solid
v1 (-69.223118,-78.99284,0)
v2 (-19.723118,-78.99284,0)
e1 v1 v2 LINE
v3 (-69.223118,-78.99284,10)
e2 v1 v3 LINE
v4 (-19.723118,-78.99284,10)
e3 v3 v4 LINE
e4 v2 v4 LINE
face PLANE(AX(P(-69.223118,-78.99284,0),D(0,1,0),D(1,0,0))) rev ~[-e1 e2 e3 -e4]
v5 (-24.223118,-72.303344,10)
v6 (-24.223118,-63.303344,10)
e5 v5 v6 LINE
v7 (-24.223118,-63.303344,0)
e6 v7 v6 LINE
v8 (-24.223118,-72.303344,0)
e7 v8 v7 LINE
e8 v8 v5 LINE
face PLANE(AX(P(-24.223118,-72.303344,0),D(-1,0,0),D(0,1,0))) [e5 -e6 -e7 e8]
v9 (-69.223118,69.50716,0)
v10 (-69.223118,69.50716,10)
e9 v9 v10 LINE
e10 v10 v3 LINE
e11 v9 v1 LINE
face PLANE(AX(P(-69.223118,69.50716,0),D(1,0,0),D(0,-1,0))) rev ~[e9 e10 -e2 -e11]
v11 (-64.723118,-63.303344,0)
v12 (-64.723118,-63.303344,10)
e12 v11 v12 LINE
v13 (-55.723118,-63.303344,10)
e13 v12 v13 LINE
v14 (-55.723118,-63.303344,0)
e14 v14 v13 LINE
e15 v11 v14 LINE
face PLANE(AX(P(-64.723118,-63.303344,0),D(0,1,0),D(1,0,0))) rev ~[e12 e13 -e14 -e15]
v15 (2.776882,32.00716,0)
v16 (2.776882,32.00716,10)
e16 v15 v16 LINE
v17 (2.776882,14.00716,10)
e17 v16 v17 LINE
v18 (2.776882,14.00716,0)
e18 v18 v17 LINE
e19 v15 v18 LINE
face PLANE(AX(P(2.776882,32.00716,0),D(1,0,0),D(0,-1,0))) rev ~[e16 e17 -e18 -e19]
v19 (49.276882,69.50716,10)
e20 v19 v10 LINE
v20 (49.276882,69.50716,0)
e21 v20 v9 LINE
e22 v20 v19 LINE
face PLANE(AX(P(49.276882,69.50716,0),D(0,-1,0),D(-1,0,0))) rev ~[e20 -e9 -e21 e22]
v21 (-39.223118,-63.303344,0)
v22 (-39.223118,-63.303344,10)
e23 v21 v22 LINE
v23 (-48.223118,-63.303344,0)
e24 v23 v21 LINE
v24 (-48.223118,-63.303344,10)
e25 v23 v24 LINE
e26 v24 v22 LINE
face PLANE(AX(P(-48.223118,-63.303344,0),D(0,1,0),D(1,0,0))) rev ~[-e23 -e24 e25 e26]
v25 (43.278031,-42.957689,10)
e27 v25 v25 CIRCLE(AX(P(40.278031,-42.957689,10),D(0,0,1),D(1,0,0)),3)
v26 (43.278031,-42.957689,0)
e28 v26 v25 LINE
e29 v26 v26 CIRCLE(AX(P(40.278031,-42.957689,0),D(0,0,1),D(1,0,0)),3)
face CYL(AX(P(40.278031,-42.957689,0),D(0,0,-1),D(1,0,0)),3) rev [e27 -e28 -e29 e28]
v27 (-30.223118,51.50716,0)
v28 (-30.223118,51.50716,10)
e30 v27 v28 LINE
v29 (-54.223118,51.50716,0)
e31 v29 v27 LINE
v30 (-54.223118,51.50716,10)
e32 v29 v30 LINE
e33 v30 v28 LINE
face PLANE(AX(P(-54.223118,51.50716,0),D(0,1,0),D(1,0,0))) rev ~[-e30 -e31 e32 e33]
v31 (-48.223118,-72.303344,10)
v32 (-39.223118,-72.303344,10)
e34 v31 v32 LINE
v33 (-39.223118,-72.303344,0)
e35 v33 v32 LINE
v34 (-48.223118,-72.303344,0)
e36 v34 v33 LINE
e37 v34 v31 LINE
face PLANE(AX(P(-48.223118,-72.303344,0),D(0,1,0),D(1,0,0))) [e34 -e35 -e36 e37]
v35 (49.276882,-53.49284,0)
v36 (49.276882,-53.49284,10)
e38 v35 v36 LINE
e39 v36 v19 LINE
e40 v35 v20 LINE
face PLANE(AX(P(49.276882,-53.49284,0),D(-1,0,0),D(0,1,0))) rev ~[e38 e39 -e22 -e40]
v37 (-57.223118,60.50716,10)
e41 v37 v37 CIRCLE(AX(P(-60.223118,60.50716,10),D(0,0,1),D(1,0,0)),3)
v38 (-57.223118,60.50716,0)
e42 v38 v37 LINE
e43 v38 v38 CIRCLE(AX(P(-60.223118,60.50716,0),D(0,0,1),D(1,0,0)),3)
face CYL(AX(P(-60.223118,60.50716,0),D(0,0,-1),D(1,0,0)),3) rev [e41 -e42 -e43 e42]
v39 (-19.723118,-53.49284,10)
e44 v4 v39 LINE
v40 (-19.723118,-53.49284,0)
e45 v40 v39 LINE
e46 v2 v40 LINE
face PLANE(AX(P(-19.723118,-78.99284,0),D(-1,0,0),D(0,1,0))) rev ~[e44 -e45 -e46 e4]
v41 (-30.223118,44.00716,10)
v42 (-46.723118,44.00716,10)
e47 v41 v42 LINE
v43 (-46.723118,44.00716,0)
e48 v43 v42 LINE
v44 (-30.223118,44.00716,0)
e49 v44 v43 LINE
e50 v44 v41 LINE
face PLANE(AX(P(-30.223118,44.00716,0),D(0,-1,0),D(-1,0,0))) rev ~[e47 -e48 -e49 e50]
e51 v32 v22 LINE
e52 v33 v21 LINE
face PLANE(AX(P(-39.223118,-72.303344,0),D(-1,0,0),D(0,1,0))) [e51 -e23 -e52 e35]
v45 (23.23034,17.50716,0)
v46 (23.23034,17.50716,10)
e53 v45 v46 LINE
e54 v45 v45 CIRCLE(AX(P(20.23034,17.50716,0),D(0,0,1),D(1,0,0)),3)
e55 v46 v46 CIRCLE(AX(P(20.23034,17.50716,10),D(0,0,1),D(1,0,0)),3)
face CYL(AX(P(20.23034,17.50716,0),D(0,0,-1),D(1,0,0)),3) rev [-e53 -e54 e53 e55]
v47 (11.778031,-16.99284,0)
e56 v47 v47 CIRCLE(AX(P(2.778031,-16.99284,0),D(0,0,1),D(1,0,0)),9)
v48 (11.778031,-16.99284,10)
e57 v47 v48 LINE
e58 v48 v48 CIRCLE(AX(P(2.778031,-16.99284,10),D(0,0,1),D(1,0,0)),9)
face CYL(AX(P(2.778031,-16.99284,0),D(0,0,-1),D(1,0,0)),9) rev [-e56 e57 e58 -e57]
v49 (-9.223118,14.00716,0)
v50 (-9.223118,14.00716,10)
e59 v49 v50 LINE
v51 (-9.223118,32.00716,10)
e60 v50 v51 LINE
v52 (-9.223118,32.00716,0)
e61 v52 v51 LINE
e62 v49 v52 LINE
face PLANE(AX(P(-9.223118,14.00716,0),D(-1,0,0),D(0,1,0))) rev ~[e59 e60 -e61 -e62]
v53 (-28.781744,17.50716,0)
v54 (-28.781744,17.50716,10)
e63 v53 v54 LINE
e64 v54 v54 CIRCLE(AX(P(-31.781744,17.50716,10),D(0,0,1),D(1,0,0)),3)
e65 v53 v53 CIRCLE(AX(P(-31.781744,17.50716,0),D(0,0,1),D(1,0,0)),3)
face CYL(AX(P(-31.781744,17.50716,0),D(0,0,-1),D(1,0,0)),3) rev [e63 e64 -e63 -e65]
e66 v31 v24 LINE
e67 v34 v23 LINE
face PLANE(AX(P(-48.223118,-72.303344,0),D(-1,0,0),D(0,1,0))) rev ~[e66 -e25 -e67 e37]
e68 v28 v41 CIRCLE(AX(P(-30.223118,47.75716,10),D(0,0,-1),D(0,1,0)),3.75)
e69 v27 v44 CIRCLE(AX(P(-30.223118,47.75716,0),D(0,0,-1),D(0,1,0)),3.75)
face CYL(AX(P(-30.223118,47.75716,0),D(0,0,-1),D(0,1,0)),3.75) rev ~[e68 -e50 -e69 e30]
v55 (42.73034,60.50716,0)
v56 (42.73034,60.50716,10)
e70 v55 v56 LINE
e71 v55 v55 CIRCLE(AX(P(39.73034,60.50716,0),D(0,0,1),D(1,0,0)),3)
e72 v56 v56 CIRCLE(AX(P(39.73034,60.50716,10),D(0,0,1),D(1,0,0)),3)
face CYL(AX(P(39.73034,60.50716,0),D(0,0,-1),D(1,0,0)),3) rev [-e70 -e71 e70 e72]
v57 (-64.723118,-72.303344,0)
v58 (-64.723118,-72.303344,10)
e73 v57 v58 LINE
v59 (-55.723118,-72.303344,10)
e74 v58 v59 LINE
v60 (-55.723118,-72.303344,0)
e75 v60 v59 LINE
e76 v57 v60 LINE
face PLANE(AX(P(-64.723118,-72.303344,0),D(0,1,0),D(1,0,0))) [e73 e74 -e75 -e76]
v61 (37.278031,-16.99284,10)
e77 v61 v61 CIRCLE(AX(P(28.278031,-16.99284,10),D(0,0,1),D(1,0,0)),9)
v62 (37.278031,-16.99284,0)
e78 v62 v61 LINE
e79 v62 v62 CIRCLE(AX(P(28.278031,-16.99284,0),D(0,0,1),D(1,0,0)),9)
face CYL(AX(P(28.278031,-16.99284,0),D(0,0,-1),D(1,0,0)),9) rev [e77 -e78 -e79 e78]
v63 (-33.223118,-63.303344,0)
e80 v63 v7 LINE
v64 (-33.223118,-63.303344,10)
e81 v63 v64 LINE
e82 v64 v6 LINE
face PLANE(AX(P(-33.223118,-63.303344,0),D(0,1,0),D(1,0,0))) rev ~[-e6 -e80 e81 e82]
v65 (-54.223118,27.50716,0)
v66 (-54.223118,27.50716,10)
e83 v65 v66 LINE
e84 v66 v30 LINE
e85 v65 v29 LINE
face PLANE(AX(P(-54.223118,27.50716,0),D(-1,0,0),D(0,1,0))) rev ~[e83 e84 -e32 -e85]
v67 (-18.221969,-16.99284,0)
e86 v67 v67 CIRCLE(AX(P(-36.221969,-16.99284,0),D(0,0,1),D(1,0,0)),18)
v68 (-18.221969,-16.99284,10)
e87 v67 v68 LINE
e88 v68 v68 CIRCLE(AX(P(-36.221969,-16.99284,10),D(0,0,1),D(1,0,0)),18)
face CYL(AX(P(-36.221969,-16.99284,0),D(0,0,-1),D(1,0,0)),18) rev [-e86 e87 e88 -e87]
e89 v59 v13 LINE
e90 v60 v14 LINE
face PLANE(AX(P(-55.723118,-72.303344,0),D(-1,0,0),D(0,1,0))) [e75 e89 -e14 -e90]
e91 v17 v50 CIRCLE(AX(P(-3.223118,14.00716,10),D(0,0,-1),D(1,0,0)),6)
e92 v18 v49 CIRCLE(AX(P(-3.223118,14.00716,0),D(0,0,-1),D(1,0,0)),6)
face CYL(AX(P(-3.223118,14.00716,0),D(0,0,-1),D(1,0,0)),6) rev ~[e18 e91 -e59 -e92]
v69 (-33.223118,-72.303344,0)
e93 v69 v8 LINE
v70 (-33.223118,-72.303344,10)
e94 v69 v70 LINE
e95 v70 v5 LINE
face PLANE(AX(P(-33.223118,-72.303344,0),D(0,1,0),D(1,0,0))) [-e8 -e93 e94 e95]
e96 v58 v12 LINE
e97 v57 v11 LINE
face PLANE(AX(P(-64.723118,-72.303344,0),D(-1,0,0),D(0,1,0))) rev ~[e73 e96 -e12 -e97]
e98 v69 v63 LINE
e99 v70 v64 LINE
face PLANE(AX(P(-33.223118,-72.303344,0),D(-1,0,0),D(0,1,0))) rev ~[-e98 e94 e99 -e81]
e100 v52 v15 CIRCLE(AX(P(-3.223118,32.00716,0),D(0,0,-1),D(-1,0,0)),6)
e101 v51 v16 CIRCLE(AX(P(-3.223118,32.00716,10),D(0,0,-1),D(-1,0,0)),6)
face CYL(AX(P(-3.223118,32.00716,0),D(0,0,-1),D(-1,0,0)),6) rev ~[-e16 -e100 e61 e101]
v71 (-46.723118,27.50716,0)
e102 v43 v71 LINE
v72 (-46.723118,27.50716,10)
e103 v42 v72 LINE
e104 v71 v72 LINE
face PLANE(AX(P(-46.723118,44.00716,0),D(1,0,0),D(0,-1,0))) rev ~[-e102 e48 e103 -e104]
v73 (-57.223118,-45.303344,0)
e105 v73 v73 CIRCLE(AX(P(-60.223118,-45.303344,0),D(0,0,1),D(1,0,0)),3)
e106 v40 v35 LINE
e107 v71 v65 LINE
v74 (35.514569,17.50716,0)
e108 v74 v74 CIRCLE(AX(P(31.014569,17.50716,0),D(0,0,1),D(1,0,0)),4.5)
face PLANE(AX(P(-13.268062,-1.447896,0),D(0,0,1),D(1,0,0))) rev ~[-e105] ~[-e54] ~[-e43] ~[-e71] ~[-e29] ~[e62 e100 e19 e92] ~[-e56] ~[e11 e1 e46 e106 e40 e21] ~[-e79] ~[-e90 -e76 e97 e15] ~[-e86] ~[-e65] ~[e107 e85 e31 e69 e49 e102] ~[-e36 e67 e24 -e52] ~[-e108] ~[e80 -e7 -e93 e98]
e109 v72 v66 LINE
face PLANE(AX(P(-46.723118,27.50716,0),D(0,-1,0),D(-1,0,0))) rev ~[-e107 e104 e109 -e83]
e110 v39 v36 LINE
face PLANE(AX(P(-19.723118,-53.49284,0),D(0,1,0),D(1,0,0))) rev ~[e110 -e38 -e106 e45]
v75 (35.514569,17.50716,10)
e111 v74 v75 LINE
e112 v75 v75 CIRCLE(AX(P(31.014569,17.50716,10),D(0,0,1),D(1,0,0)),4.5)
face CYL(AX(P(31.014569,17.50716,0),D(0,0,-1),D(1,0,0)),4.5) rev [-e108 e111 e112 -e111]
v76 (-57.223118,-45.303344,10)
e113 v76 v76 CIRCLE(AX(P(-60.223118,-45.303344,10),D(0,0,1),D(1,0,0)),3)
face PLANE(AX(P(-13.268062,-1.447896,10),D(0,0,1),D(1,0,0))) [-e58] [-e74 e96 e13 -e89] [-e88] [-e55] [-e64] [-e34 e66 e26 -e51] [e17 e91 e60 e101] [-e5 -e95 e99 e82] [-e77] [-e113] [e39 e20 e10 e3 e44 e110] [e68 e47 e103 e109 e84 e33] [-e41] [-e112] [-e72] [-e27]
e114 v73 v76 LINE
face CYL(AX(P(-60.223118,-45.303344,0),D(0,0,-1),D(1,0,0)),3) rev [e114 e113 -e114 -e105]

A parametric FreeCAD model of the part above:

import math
import FreeCAD as App
import Part
import Sketcher

doc = App.newDocument("Part")
params = doc.addObject("Spreadsheet::Sheet", "Params")
for row, (alias, value) in enumerate([
    ("sketch1_diameter", "6 mm"),
    ("sketch1_diameter2", "36 mm"),
    ("sketch1_diameter3", "18 mm"),
    ("sketch1_diameter4", "9 mm"),
    ("sketch1_radius", "6 mm"),
    ("pad1_length", "10 mm"),
], start=1):
    params.set(f"A{row}", alias)
    params.set(f"B{row}", "=" + value)
    params.setAlias(f"B{row}", alias)

body = doc.addObject("PartDesign::Body", "Body")

# Sketch on XY plane
sketch1 = doc.addObject("Sketcher::SketchObject", "Sketch")
body.addObject(sketch1)
sketch1.AttachmentSupport = (doc.XY_Plane, [""])
sketch1.MapMode = "FlatFace"
sketch1.addGeometry([
    Part.LineSegment(App.Vector(49.276882, 69.50716, 0), App.Vector(-69.223118, 69.50716, 0)),  # 0
    Part.LineSegment(App.Vector(-69.223118, 69.50716, 0), App.Vector(-69.223118, -78.99284, 0)),  # 1
    Part.LineSegment(App.Vector(-69.223118, -78.99284, 0), App.Vector(-19.723118, -78.99284, 0)),  # 2
    Part.LineSegment(App.Vector(-19.723118, -78.99284, 0), App.Vector(-19.723118, -53.49284, 0)),  # 3
    Part.LineSegment(App.Vector(-19.723118, -53.49284, 0), App.Vector(49.276882, -53.49284, 0)),  # 4
    Part.LineSegment(App.Vector(49.276882, -53.49284, 0), App.Vector(49.276882, 69.50716, 0)),  # 5
    Part.LineSegment(App.Vector(-55.723118, -72.303344, 0), App.Vector(-64.723118, -72.303344, 0)),  # 6
    Part.LineSegment(App.Vector(-64.723118, -72.303344, 0), App.Vector(-64.723118, -63.303344, 0)),  # 7
    Part.LineSegment(App.Vector(-64.723118, -63.303344, 0), App.Vector(-55.723118, -63.303344, 0)),  # 8
    Part.LineSegment(App.Vector(-55.723118, -63.303344, 0), App.Vector(-55.723118, -72.303344, 0)),  # 9
    Part.LineSegment(App.Vector(-39.223118, -72.303344, 0), App.Vector(-48.223118, -72.303344, 0)),  # 10
    Part.LineSegment(App.Vector(-48.223118, -72.303344, 0), App.Vector(-48.223118, -63.303344, 0)),  # 11
    Part.LineSegment(App.Vector(-48.223118, -63.303344, 0), App.Vector(-39.223118, -63.303344, 0)),  # 12
    Part.LineSegment(App.Vector(-39.223118, -63.303344, 0), App.Vector(-39.223118, -72.303344, 0)),  # 13
    Part.Circle(App.Vector(-60.223118, -45.303344, 0), App.Vector(0, 0, 1), 3),  # 14
    Part.LineSegment(App.Vector(-24.223118, -72.303344, 0), App.Vector(-33.223118, -72.303344, 0)),  # 15
    Part.LineSegment(App.Vector(-33.223118, -72.303344, 0), App.Vector(-33.223118, -63.303344, 0)),  # 16
    Part.LineSegment(App.Vector(-33.223118, -63.303344, 0), App.Vector(-24.223118, -63.303344, 0)),  # 17
    Part.LineSegment(App.Vector(-24.223118, -63.303344, 0), App.Vector(-24.223118, -72.303344, 0)),  # 18
    Part.Circle(App.Vector(-36.221969, -16.99284, 0), App.Vector(0, 0, 1), 18),  # 19
    Part.Circle(App.Vector(40.278031, -42.957689, 0), App.Vector(0, 0, 1), 3),  # 20
    Part.Circle(App.Vector(2.778031, -16.99284, 0), App.Vector(0, 0, 1), 9),  # 21
    Part.Circle(App.Vector(28.278031, -16.99284, 0), App.Vector(0, 0, 1), 9),  # 22
    Part.Circle(App.Vector(-31.781744, 17.50716, 0), App.Vector(0, 0, 1), 3),  # 23
    Part.LineSegment(App.Vector(-46.723118, 27.50716, 0), App.Vector(-54.223118, 27.50716, 0)),  # 24
    Part.LineSegment(App.Vector(-54.223118, 27.50716, 0), App.Vector(-54.223118, 51.50716, 0)),  # 25
    Part.LineSegment(App.Vector(-54.223118, 51.50716, 0), App.Vector(-30.223118, 51.50716, 0)),  # 26
    Part.ArcOfCircle(Part.Circle(App.Vector(-30.223118, 47.75716, 0), App.Vector(0, 0, 1), 3.75), math.radians(-90), math.radians(90)),  # 27
    Part.LineSegment(App.Vector(-30.223118, 44.00716, 0), App.Vector(-46.723118, 44.00716, 0)),  # 28
    Part.LineSegment(App.Vector(-46.723118, 44.00716, 0), App.Vector(-46.723118, 27.50716, 0)),  # 29
    Part.Circle(App.Vector(-60.223118, 60.50716, 0), App.Vector(0, 0, 1), 3),  # 30
    Part.ArcOfCircle(Part.Circle(App.Vector(-3.223118, 14.00716, 0), App.Vector(0, 0, 1), 6), math.radians(180), math.radians(360)),  # 31
    Part.LineSegment(App.Vector(-9.223118, 14.00716, 0), App.Vector(-9.223118, 32.00716, 0)),  # 32
    Part.ArcOfCircle(Part.Circle(App.Vector(-3.223118, 32.00716, 0), App.Vector(0, 0, 1), 6), math.radians(0), math.radians(180)),  # 33
    Part.LineSegment(App.Vector(2.776882, 32.00716, 0), App.Vector(2.776882, 14.00716, 0)),  # 34
    Part.Circle(App.Vector(20.23034, 17.50716, 0), App.Vector(0, 0, 1), 3),  # 35
    Part.Circle(App.Vector(31.014569, 17.50716, 0), App.Vector(0, 0, 1), 4.5),  # 36
    Part.Circle(App.Vector(39.73034, 60.50716, 0), App.Vector(0, 0, 1), 3),  # 37
], False)
sketch1.addConstraint([
    Sketcher.Constraint("Coincident", 0, 2, 1, 1),
    Sketcher.Constraint("Coincident", 1, 2, 2, 1),
    Sketcher.Constraint("Coincident", 2, 2, 3, 1),
    Sketcher.Constraint("Coincident", 3, 2, 4, 1),
    Sketcher.Constraint("Coincident", 4, 2, 5, 1),
    Sketcher.Constraint("Coincident", 5, 2, 0, 1),
    Sketcher.Constraint("Coincident", 6, 2, 7, 1),
    Sketcher.Constraint("Coincident", 7, 2, 8, 1),
    Sketcher.Constraint("Coincident", 8, 2, 9, 1),
    Sketcher.Constraint("Coincident", 9, 2, 6, 1),
    Sketcher.Constraint("Coincident", 10, 2, 11, 1),
    Sketcher.Constraint("Coincident", 11, 2, 12, 1),
    Sketcher.Constraint("Coincident", 12, 2, 13, 1),
    Sketcher.Constraint("Coincident", 13, 2, 10, 1),
    Sketcher.Constraint("Coincident", 15, 2, 16, 1),
    Sketcher.Constraint("Coincident", 16, 2, 17, 1),
    Sketcher.Constraint("Coincident", 17, 2, 18, 1),
    Sketcher.Constraint("Coincident", 18, 2, 15, 1),
    Sketcher.Constraint("Coincident", 24, 2, 25, 1),
    Sketcher.Constraint("Coincident", 25, 2, 26, 1),
    Sketcher.Constraint("Tangent", 26, 2, 27, 2),
    Sketcher.Constraint("Tangent", 27, 1, 28, 1),
    Sketcher.Constraint("Coincident", 28, 2, 29, 1),
    Sketcher.Constraint("Coincident", 29, 2, 24, 1),
    Sketcher.Constraint("Tangent", 31, 1, 32, 1),
    Sketcher.Constraint("Tangent", 32, 2, 33, 2),
    Sketcher.Constraint("Tangent", 33, 1, 34, 1),
    Sketcher.Constraint("Tangent", 34, 2, 31, 2),
    Sketcher.Constraint("Horizontal", 0),
    Sketcher.Constraint("Vertical", 1),
    Sketcher.Constraint("Horizontal", 2),
    Sketcher.Constraint("Vertical", 3),
    Sketcher.Constraint("Horizontal", 4),
    Sketcher.Constraint("Vertical", 5),
    Sketcher.Constraint("Horizontal", 6),
    Sketcher.Constraint("Vertical", 7),
    Sketcher.Constraint("Horizontal", 8),
    Sketcher.Constraint("Vertical", 9),
    Sketcher.Constraint("Horizontal", 10),
    Sketcher.Constraint("Vertical", 11),
    Sketcher.Constraint("Horizontal", 12),
    Sketcher.Constraint("Vertical", 13),
    Sketcher.Constraint("Horizontal", 15),
    Sketcher.Constraint("Vertical", 16),
    Sketcher.Constraint("Horizontal", 17),
    Sketcher.Constraint("Vertical", 18),
    Sketcher.Constraint("Horizontal", 24),
    Sketcher.Constraint("Vertical", 25),
    Sketcher.Constraint("Horizontal", 26),
    Sketcher.Constraint("Horizontal", 28),
    Sketcher.Constraint("Vertical", 29),
    Sketcher.Constraint("Vertical", 32),
    Sketcher.Constraint("Vertical", 34),
    Sketcher.Constraint("Equal", 14, 20),
    Sketcher.Constraint("Equal", 21, 22),
    Sketcher.Constraint("Equal", 20, 23),
    Sketcher.Constraint("Equal", 23, 30),
    Sketcher.Constraint("Equal", 30, 35),
    Sketcher.Constraint("Equal", 35, 37),
    Sketcher.Constraint("Horizontal", 19, 3, 21, 3),
    Sketcher.Constraint("Horizontal", 21, 3, 22, 3),
    Sketcher.Constraint("Horizontal", 23, 3, 35, 3),
    Sketcher.Constraint("Horizontal", 35, 3, 36, 3),
    Sketcher.Constraint("Horizontal", 30, 3, 37, 3),
    Sketcher.Constraint("Horizontal", 9, 2, 10, 2),
    Sketcher.Constraint("Horizontal", 8, 2, 11, 2),
    Sketcher.Constraint("Horizontal", 13, 2, 15, 2),
    Sketcher.Constraint("Horizontal", 12, 2, 16, 2),
    Sketcher.Constraint("Vertical", 14, 3, 30, 3),
    Sketcher.Constraint("Equal", 8, 10),
    Sketcher.Constraint("Equal", 12, 15),
    Sketcher.Constraint("Equal", 17, 7),
    Sketcher.Constraint("Equal", 26, 25),
    Sketcher.Constraint("Equal", 28, 29),
    Sketcher.Constraint("Diameter", 14, 6.0),
    Sketcher.Constraint("Diameter", 19, 36.0),
    Sketcher.Constraint("Diameter", 21, 18.0),
    Sketcher.Constraint("Diameter", 36, 9.0),
    Sketcher.Constraint("Radius", 31, 6.0),
    Sketcher.Constraint("DistanceX", 4, 1, 4, 2, 69.0),
    Sketcher.Constraint("DistanceX", 6, 2, 6, 1, 9.0),
    Sketcher.Constraint("DistanceX", 26, 1, 26, 2, 24.0),
    Sketcher.Constraint("DistanceY", 5, 1, 5, 2, 123.0),
    Sketcher.Constraint("DistanceY", 32, 1, 32, 2, 18.0),
    Sketcher.Constraint("Radius", 27, 3.75),
    Sketcher.Constraint("DistanceX", 0, 2, 0, 1, 118.5),
    Sketcher.Constraint("DistanceY", 1, 2, 1, 1, 148.5),
    Sketcher.Constraint("DistanceX", 19, 3, 21, 3, 39.0),
    Sketcher.Constraint("DistanceX", 22, 3, 20, 3, 12.0),
    Sketcher.Constraint("DistanceX", 14, 3, 27, 3, 30.0),
    Sketcher.Constraint("DistanceY", 23, 3, 30, 3, 43.0),
    Sketcher.Constraint("DistanceY", 21, 3, 31, 3, 31.0),
    Sketcher.Constraint("DistanceX", 27, 3, 31, 3, 27.0),
    Sketcher.Constraint("DistanceX", 0, 2, 30, 3, 9.0),
    Sketcher.Constraint("DistanceY", 30, 3, 0, 2, 9.0),
    Sketcher.Constraint("DistanceY", 1, 2, 19, 3, 62.0),
    Sketcher.Constraint("DistanceY", 6, 2, 14, 3, 27.0),
    Sketcher.Constraint("DistanceX", 6, 2, 2, 2, 45.0),
    Sketcher.Constraint("DistanceX", 1, 2, 10, 2, 21.0),
    Sketcher.Constraint("DistanceX", 13, 2, 15, 2, 6.0),
    Sketcher.Constraint("DistanceY", 23, 3, 24, 2, 10.0),
    Sketcher.Constraint("DistanceX", 19, 3, 20, 3, 76.5),
    Sketcher.Constraint("DistanceX", 35, 3, 37, 3, 19.5),
    Sketcher.Constraint("DistanceX", 19, 3, -1, 1, 36.221969),
    Sketcher.Constraint("DistanceY", 19, 3, -1, 1, 16.99284),
    Sketcher.Constraint("DistanceY", 20, 3, -1, 1, 42.957689),
    Sketcher.Constraint("DistanceX", -1, 1, 35, 3, 20.23034),
    Sketcher.Constraint("DistanceX", -1, 1, 36, 3, 31.014569),
    Sketcher.Constraint("DistanceX", 0, 2, -1, 1, 69.223118),
    Sketcher.Constraint("DistanceY", 14, 3, -1, 1, 45.303344),
    Sketcher.Constraint("DistanceX", 23, 3, -1, 1, 31.781744),
])
sketch1.setExpression("Constraints[74]", "Params.sketch1_diameter")
sketch1.setExpression("Constraints[75]", "Params.sketch1_diameter2")
sketch1.setExpression("Constraints[76]", "Params.sketch1_diameter3")
sketch1.setExpression("Constraints[77]", "Params.sketch1_diameter4")
sketch1.setExpression("Constraints[78]", "Params.sketch1_radius")
pad1 = doc.addObject("PartDesign::Pad", "Pad")
body.addObject(pad1)
pad1.Profile = sketch1
pad1.setExpression("Length", "Params.pad1_length")

doc.recompute()
